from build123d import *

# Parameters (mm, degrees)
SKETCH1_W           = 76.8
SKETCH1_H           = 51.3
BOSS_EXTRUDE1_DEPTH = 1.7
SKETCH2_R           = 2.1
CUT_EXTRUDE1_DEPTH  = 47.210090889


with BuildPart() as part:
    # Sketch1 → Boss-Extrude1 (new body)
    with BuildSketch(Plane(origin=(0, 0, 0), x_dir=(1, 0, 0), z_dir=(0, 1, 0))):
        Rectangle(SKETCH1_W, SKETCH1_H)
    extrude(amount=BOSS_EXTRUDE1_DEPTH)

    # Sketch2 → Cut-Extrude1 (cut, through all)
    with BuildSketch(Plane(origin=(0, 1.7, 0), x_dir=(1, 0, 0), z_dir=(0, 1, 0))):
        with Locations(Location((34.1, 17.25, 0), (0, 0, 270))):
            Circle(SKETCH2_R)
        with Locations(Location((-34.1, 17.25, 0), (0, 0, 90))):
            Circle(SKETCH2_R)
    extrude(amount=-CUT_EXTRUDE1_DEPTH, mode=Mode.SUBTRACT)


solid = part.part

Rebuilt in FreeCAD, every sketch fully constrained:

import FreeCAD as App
import Part
import Sketcher

V = App.Vector


def add_polygon(sketch, points):
    """Adds a closed chain of lines whose ends are joined by coincident constraints."""
    first, n = sketch.GeometryCount, len(points)
    for a, b in zip(points, points[1:] + points[:1]):
        sketch.addGeometry(Part.LineSegment(App.Vector(*a, 0), App.Vector(*b, 0)), False)
    for i in range(n):
        sketch.addConstraint(Sketcher.Constraint("Coincident", first + i, 2, first + (i + 1) % n, 1))

doc = App.newDocument("Part")
body = doc.addObject("PartDesign::Body", "Body")

# Sketch on XZ plane
sketch1 = doc.addObject("Sketcher::SketchObject", "Sketch")
body.addObject(sketch1)
sketch1.AttachmentSupport = (doc.XZ_Plane, [""])
sketch1.MapMode = "FlatFace"
add_polygon(sketch1, [(-38, -26), (-38, 26), (38, 26), (38, -26)])  # lines 0-3
sketch1.addConstraint([
    Sketcher.Constraint("Vertical", 0),
    Sketcher.Constraint("Horizontal", 1),
    Sketcher.Constraint("Vertical", 2),
    Sketcher.Constraint("Horizontal", 3),
    Sketcher.Constraint("Symmetric", 0, 2, 2, 2, -1, 1),
    Sketcher.Constraint("DistanceX", 1, 1, 1, 2, 76.8),
    Sketcher.Constraint("DistanceY", 0, 1, 0, 2, 51.3),
])
pad1 = doc.addObject("PartDesign::Pad", "Pad")
body.addObject(pad1)
pad1.Profile = sketch1
pad1.Length = 1.7
pad1.Reversed = True

# Sketch on XZ plane
sketch2 = doc.addObject("Sketcher::SketchObject", "Sketch001")
body.addObject(sketch2)
sketch2.AttachmentSupport = (doc.XZ_Plane, [""])
sketch2.MapMode = "FlatFace"
sketch2.AttachmentOffset = App.Placement(V(0, 0, -1.7), App.Rotation())
sketch2.addGeometry([
    Part.Circle(V(34.1, -17.2, 0), V(0, 0, 1), 2.1),
    Part.Circle(V(-34.1, -17.2, 0), V(0, 0, 1), 2.1),
], False)
sketch2.addConstraint([
    Sketcher.Constraint("Equal", 0, 1),
    Sketcher.Constraint("Symmetric", 0, 3, 1, 3, -2),
    Sketcher.Constraint("Diameter", 0, 4.2),
    Sketcher.Constraint("DistanceX", -1, 1, 0, 3, 34.1),
    Sketcher.Constraint("DistanceY", 0, 3, -1, 1, 17.25),
])
pocket1 = doc.addObject("PartDesign::Pocket", "Pocket")
body.addObject(pocket1)
pocket1.Profile = sketch2
pocket1.Type = "ThroughAll"
pocket1.Reversed = True

doc.recompute()
